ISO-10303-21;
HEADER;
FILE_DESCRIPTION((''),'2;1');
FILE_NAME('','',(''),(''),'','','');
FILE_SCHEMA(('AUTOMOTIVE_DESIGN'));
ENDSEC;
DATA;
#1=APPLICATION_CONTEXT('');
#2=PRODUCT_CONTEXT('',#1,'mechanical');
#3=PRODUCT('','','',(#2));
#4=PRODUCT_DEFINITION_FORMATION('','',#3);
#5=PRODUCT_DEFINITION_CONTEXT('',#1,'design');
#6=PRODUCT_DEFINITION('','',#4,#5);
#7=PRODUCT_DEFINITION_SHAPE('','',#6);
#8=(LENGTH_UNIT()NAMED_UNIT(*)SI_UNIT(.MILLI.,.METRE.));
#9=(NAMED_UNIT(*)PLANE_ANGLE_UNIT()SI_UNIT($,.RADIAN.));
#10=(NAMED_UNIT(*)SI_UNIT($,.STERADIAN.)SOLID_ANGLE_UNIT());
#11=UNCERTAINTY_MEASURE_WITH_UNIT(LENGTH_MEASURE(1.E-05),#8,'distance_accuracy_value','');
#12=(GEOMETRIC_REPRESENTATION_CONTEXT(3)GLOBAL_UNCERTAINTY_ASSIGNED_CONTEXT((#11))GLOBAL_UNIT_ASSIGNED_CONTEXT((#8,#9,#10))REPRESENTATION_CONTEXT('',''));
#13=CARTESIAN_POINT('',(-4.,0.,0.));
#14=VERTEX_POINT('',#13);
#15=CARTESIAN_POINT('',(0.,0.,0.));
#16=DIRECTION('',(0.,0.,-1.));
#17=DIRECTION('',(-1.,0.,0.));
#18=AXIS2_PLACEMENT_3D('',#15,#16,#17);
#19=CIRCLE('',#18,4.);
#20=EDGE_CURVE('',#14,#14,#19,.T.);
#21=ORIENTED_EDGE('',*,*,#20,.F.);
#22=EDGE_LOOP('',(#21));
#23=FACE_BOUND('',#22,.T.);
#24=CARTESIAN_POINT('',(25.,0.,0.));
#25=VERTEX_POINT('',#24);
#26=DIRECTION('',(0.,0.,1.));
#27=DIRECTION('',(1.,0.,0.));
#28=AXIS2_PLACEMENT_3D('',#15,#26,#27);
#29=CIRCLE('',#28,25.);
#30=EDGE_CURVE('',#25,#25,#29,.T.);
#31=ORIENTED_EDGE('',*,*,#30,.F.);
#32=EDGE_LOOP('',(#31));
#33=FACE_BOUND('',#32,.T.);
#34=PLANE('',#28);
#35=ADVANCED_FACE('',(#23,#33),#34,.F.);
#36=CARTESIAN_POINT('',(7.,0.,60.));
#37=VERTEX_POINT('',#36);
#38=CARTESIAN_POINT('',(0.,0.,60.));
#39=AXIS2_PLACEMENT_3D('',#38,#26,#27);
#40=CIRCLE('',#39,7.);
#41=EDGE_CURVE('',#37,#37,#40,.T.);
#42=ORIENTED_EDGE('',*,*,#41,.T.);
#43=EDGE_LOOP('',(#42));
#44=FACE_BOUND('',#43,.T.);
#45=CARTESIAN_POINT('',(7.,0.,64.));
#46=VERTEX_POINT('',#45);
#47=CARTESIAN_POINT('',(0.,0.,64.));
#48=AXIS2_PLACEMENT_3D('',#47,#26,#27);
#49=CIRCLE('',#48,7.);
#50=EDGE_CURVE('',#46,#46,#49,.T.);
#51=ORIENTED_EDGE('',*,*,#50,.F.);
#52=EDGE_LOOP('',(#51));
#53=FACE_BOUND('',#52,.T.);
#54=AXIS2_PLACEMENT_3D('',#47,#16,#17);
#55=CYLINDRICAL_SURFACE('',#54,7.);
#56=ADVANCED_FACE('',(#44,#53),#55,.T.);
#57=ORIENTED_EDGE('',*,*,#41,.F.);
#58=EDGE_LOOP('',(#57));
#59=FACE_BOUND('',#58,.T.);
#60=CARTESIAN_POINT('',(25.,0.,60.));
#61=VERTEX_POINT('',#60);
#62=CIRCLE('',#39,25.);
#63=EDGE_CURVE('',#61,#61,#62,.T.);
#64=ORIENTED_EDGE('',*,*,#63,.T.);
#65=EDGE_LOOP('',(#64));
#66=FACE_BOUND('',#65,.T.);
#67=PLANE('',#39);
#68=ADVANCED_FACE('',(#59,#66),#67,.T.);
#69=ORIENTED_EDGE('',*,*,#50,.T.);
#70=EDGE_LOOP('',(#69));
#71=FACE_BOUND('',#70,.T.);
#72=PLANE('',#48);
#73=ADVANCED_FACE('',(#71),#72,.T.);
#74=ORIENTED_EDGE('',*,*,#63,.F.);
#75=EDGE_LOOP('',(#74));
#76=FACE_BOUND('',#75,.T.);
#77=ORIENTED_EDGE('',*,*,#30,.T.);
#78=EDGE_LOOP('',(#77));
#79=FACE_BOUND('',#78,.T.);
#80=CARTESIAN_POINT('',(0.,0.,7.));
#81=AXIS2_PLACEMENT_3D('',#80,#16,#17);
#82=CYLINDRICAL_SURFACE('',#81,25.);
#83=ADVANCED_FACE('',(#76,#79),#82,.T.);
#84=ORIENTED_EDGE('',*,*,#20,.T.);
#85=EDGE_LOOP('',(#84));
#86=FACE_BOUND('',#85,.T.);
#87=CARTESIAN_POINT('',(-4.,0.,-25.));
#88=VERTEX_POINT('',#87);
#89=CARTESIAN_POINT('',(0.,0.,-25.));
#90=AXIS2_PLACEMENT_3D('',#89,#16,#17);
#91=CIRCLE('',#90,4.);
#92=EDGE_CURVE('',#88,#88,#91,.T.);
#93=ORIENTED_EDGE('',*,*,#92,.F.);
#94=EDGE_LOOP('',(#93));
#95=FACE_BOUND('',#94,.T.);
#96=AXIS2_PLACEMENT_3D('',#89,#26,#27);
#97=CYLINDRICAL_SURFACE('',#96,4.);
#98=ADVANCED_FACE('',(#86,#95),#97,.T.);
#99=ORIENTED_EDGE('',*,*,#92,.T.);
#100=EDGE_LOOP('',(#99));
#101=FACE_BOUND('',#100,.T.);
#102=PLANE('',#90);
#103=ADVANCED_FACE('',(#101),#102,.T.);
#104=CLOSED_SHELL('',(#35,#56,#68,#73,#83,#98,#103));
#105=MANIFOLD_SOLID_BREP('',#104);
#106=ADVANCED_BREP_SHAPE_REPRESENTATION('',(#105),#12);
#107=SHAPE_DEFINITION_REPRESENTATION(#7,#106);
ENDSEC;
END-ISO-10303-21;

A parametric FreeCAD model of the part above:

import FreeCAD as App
import Part
import Sketcher
from FreeCAD import Vector
Q = App.Units.Quantity

doc = App.newDocument("Part")
params = doc.addObject("Spreadsheet::Sheet", "Params")
for row, (alias, value) in enumerate([
    ("sketch1_diameter", "50 mm"),
    ("pad1_length", "7 mm"),
    ("sketch2_diameter", "8 mm"),
    ("pad2_length", "25 mm"),
    ("sketch3_diameter", "50 mm"),
    ("pad3_length", "53 mm"),
    ("sketch4_diameter", "14 mm"),
    ("pad4_length", "4 mm"),
], start=1):
    params.set(f"A{row}", alias)
    params.set(f"B{row}", "=" + value)
    params.setAlias(f"B{row}", alias)

body = doc.addObject("PartDesign::Body", "Body")

# Sketch on XY plane
sketch1 = body.newObject("Sketcher::SketchObject", "Sketch")
sketch1.AttachmentSupport = (doc.getObject("XY_Plane"), [""])
sketch1.MapMode = "FlatFace"
sketch1.addGeometry(Part.Circle(Vector(0, 0, 0), Vector(0, 0, 1), 25), False)
sketch1.addConstraint([
    Sketcher.Constraint("Coincident", 0, 3, -1, 1),
    Sketcher.Constraint("Diameter", 0, Q("50 mm")),
])
sketch1.setExpression("Constraints[1]", "Params.sketch1_diameter")
pad1 = body.newObject("PartDesign::Pad", "Pad")
pad1.Profile = sketch1
pad1.setExpression("Length", "Params.pad1_length")

# Sketch on XY plane
sketch2 = body.newObject("Sketcher::SketchObject", "Sketch001")
sketch2.AttachmentSupport = (doc.getObject("XY_Plane"), [""])
sketch2.MapMode = "FlatFace"
sketch2.addGeometry(Part.Circle(Vector(0, 0, 0), Vector(0, 0, 1), 4), False)
sketch2.addConstraint([
    Sketcher.Constraint("Coincident", 0, 3, -1, 1),
    Sketcher.Constraint("Diameter", 0, Q("8 mm")),
])
sketch2.setExpression("Constraints[1]", "Params.sketch2_diameter")
pad2 = body.newObject("PartDesign::Pad", "Pad001")
pad2.Profile = sketch2
pad2.setExpression("Length", "Params.pad2_length")
pad2.Reversed = True

# Sketch on XY plane
sketch3 = body.newObject("Sketcher::SketchObject", "Sketch002")
sketch3.AttachmentSupport = (doc.getObject("XY_Plane"), [""])
sketch3.MapMode = "FlatFace"
sketch3.AttachmentOffset = App.Placement(Vector(0, 0, 7), App.Rotation())
sketch3.addGeometry(Part.Circle(Vector(0, 0, 0), Vector(0, 0, 1), 25), False)
sketch3.addConstraint([
    Sketcher.Constraint("Coincident", 0, 3, -1, 1),
    Sketcher.Constraint("Diameter", 0, Q("50 mm")),
])
sketch3.setExpression("Constraints[1]", "Params.sketch3_diameter")
pad3 = body.newObject("PartDesign::Pad", "Pad002")
pad3.Profile = sketch3
pad3.setExpression("Length", "Params.pad3_length")

# Sketch on XY plane
sketch4 = body.newObject("Sketcher::SketchObject", "Sketch003")
sketch4.AttachmentSupport = (doc.getObject("XY_Plane"), [""])
sketch4.MapMode = "FlatFace"
sketch4.AttachmentOffset = App.Placement(Vector(0, 0, 60), App.Rotation())
sketch4.addGeometry(Part.Circle(Vector(0, 0, 0), Vector(0, 0, 1), 7), False)
sketch4.addConstraint([
    Sketcher.Constraint("Coincident", 0, 3, -1, 1),
    Sketcher.Constraint("Diameter", 0, Q("14 mm")),
])
sketch4.setExpression("Constraints[1]", "Params.sketch4_diameter")
pad4 = body.newObject("PartDesign::Pad", "Pad003")
pad4.Profile = sketch4
pad4.setExpression("Length", "Params.pad4_length")

doc.recompute()
